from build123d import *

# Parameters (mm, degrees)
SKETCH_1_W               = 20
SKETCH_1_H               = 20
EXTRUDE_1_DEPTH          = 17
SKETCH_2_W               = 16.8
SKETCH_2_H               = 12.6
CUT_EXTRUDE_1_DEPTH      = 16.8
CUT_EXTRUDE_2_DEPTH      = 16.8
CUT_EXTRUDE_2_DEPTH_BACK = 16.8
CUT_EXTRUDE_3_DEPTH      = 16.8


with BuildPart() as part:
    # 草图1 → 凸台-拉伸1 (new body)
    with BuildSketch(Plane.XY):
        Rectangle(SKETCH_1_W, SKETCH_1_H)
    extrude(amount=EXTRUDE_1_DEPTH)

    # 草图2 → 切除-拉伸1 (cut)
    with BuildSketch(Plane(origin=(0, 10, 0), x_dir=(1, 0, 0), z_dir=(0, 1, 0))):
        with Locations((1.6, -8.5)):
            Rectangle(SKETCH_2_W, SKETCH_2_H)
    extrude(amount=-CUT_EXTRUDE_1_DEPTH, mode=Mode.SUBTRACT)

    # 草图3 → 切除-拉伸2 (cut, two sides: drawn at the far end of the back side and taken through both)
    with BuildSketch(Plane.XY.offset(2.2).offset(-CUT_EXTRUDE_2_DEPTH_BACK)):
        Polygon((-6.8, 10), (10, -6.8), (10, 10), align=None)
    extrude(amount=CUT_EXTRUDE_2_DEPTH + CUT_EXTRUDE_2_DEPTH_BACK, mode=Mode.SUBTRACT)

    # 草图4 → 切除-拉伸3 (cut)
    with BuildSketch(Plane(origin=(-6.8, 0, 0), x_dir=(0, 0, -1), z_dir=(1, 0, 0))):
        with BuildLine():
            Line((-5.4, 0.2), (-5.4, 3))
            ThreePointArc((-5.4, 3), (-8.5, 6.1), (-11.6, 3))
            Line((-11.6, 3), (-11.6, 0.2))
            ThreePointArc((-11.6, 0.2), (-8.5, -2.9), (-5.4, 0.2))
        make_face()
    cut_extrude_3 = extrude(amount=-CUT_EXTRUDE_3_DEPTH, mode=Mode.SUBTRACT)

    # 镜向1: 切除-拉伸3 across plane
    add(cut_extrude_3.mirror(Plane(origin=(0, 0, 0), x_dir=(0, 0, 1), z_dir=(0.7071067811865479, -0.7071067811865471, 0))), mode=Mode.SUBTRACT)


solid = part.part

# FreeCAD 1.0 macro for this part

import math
import FreeCAD as App
import Part
import Sketcher

V = App.Vector
Q = App.Units.Quantity

doc = App.newDocument("Part")
body = doc.addObject("PartDesign::Body", "Body")

# Sketch on XY plane
sketch1 = body.newObject("Sketcher::SketchObject", "Sketch")
sketch1.AttachmentSupport = (doc.getObject("XY_Plane"), [""])
sketch1.MapMode = "FlatFace"
sketch1.addGeometry([
    Part.LineSegment(V(-10, 10, 0), V(-10, -10, 0)),
    Part.LineSegment(V(-10, -10, 0), V(10, -10, 0)),
    Part.LineSegment(V(10, -10, 0), V(10, 10, 0)),
    Part.LineSegment(V(10, 10, 0), V(-10, 10, 0)),
], False)
sketch1.addConstraint([
    Sketcher.Constraint("Coincident", 0, 2, 1, 1),
    Sketcher.Constraint("Coincident", 1, 2, 2, 1),
    Sketcher.Constraint("Coincident", 2, 2, 3, 1),
    Sketcher.Constraint("Coincident", 3, 2, 0, 1),
    Sketcher.Constraint("Vertical", 0),
    Sketcher.Constraint("Horizontal", 1),
    Sketcher.Constraint("Vertical", 2),
    Sketcher.Constraint("Horizontal", 3),
    Sketcher.Constraint("Symmetric", 0, 2, 2, 2, -1, 1),
    Sketcher.Constraint("Equal", 3, 0),
    Sketcher.Constraint("DistanceX", 1, 1, 1, 2, Q("20 mm")),
])
pad1 = body.newObject("PartDesign::Pad", "Pad")
pad1.Profile = sketch1
pad1.Length = 17

# Sketch on XZ plane
sketch2 = body.newObject("Sketcher::SketchObject", "Sketch001")
sketch2.AttachmentSupport = (doc.getObject("XZ_Plane"), [""])
sketch2.MapMode = "FlatFace"
sketch2.AttachmentOffset = App.Placement(V(0, 0, -10), App.Rotation())
sketch2.addGeometry([
    Part.LineSegment(V(-7, 2, 0), V(-7, 15, 0)),
    Part.LineSegment(V(-7, 15, 0), V(10, 15, 0)),
    Part.LineSegment(V(10, 15, 0), V(10, 2, 0)),
    Part.LineSegment(V(10, 2, 0), V(-7, 2, 0)),
], False)
sketch2.addConstraint([
    Sketcher.Constraint("Coincident", 0, 2, 1, 1),
    Sketcher.Constraint("Coincident", 1, 2, 2, 1),
    Sketcher.Constraint("Coincident", 2, 2, 3, 1),
    Sketcher.Constraint("Coincident", 3, 2, 0, 1),
    Sketcher.Constraint("Vertical", 0),
    Sketcher.Constraint("Horizontal", 1),
    Sketcher.Constraint("Vertical", 2),
    Sketcher.Constraint("Horizontal", 3),
    Sketcher.Constraint("DistanceX", 1, 1, 1, 2, Q("16.8 mm")),
    Sketcher.Constraint("DistanceY", 0, 1, 0, 2, Q("12.6 mm")),
    Sketcher.Constraint("DistanceX", -1, 1, 1, 2, Q("10 mm")),
    Sketcher.Constraint("DistanceY", -1, 1, 0, 2, Q("14.8 mm")),
])
pocket1 = body.newObject("PartDesign::Pocket", "Pocket")
pocket1.Profile = sketch2
pocket1.Length = 16.8
pocket1.Reversed = True

# Sketch on XY plane
sketch3 = body.newObject("Sketcher::SketchObject", "Sketch002")
sketch3.AttachmentSupport = (doc.getObject("XY_Plane"), [""])
sketch3.MapMode = "FlatFace"
sketch3.AttachmentOffset = App.Placement(V(0, 0, 2.2), App.Rotation())
sketch3.addGeometry([
    Part.LineSegment(V(-7, 10, 0), V(10, -7, 0)),
    Part.LineSegment(V(10, -7, 0), V(10, 10, 0)),
    Part.LineSegment(V(10, 10, 0), V(-7, 10, 0)),
], False)
sketch3.addConstraint([
    Sketcher.Constraint("Coincident", 0, 2, 1, 1),
    Sketcher.Constraint("Coincident", 1, 2, 2, 1),
    Sketcher.Constraint("Coincident", 2, 2, 0, 1),
    Sketcher.Constraint("Vertical", 1),
    Sketcher.Constraint("Horizontal", 2),
    Sketcher.Constraint("Equal", 2, 1),
    Sketcher.Constraint("DistanceX", 2, 2, 2, 1, Q("16.8 mm")),
    Sketcher.Constraint("DistanceX", -1, 1, 0, 2, Q("10 mm")),
    Sketcher.Constraint("DistanceY", -1, 1, 1, 2, Q("10 mm")),
])
pocket2 = body.newObject("PartDesign::Pocket", "Pocket001")
pocket2.Profile = sketch3
pocket2.Type = "ThroughAll"
pocket2.Midplane = True

# Sketch on YZ plane
sketch4 = body.newObject("Sketcher::SketchObject", "Sketch003")
sketch4.AttachmentSupport = (doc.getObject("YZ_Plane"), [""])
sketch4.MapMode = "FlatFace"
sketch4.AttachmentOffset = App.Placement(V(0, 0, -6.8), App.Rotation())
sketch4.addGeometry([
    Part.LineSegment(V(0.2, 5.4, 0), V(3, 5.4, 0)),
    Part.ArcOfCircle(Part.Circle(V(3, 8.5, 0), V(0, 0, 1), 3.1), math.radians(-90), math.radians(90)),
    Part.LineSegment(V(3, 11.6, 0), V(0.2, 11.6, 0)),
    Part.ArcOfCircle(Part.Circle(V(0.2, 8.5, 0), V(0, 0, 1), 3.1), math.radians(90), math.radians(270)),
], False)
sketch4.addConstraint([
    Sketcher.Constraint("Tangent", 0, 2, 1, 1),
    Sketcher.Constraint("Tangent", 1, 2, 2, 1),
    Sketcher.Constraint("Tangent", 2, 2, 3, 1),
    Sketcher.Constraint("Tangent", 3, 2, 0, 1),
    Sketcher.Constraint("Horizontal", 0),
    Sketcher.Constraint("Horizontal", 2),
    Sketcher.Constraint("Radius", 1, Q("3.1 mm")),
    Sketcher.Constraint("DistanceX", 0, 1, 0, 2, Q("2.8 mm")),
    Sketcher.Constraint("DistanceX", -1, 1, 1, 3, Q("3 mm")),
    Sketcher.Constraint("DistanceY", -1, 1, 1, 3, Q("8.5 mm")),
])
pocket3 = body.newObject("PartDesign::Pocket", "Pocket002")
pocket3.Profile = sketch4
pocket3.Length = 16.8
doc.recompute()

datumplane = body.newObject("PartDesign::Plane", "DatumPlane")
datumplane.Placement = App.Placement(V(0, 0, 0), App.Rotation(V(-0.707106781, -0.707106781, 0), V(0, 0, -1), V(0.707106781, -0.707106781, 0), "ZXY"))
mirrored = body.newObject("PartDesign::Mirrored", "Mirrored")
mirrored.Originals = [pocket3]
mirrored.MirrorPlane = (datumplane, [""])
body.Tip = mirrored

doc.recompute()
